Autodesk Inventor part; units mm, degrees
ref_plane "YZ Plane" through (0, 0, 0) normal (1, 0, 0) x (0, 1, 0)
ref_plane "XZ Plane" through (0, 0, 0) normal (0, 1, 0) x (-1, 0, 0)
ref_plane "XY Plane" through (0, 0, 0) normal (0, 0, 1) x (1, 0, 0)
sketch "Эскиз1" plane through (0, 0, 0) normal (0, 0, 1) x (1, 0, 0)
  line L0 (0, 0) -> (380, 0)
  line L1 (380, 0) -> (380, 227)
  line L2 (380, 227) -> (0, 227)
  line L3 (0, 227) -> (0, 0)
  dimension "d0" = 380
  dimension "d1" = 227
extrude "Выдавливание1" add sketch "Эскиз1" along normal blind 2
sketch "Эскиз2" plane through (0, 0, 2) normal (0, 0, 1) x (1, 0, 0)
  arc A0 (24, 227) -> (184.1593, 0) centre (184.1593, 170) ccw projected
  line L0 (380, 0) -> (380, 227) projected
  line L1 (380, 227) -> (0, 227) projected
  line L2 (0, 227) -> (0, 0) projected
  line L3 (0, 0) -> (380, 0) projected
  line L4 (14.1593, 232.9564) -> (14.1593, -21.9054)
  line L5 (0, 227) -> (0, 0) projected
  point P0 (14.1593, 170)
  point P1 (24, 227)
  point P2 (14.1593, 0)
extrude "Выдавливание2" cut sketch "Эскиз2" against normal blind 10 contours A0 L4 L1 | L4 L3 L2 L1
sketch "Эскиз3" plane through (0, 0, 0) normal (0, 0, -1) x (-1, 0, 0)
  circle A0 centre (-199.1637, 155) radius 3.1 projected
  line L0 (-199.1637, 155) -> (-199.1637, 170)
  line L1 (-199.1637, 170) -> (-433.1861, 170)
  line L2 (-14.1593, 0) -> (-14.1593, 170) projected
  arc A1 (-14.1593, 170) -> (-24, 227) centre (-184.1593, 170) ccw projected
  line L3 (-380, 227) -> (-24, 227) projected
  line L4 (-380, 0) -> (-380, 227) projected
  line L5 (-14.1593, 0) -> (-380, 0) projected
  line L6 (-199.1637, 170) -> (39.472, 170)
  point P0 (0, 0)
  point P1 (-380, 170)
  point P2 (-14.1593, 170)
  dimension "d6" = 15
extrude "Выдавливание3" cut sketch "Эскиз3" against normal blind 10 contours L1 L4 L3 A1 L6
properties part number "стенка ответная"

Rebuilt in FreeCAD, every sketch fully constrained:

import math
import FreeCAD as App
import Part
import Sketcher
from FreeCAD import Vector
Q = App.Units.Quantity


def add_polygon(sketch, points):
    """Adds a closed chain of lines whose ends are joined by coincident constraints."""
    first, n = sketch.GeometryCount, len(points)
    for a, b in zip(points, points[1:] + points[:1]):
        sketch.addGeometry(Part.LineSegment(App.Vector(*a, 0), App.Vector(*b, 0)), False)
    for i in range(n):
        sketch.addConstraint(Sketcher.Constraint("Coincident", first + i, 2, first + (i + 1) % n, 1))

doc = App.newDocument("Part")
body = doc.addObject("PartDesign::Body", "Body")

sketch1 = body.newObject("Sketcher::SketchObject", "Sketch")
sketch1.AttachmentSupport = (doc.getObject("XY_Plane"), [""])
sketch1.MapMode = "FlatFace"
add_polygon(sketch1, [(0, 227), (0, 0), (380, 0), (380, 227)])
sketch1.addConstraint([
    Sketcher.Constraint("Vertical", 0),
    Sketcher.Constraint("Horizontal", 1),
    Sketcher.Constraint("Vertical", 2),
    Sketcher.Constraint("Horizontal", 3),
    Sketcher.Constraint("Coincident", 0, 2, -1, 1),
    Sketcher.Constraint("DistanceX", 1, 1, 1, 2, Q("380 mm")),
    Sketcher.Constraint("DistanceY", 0, 2, 0, 1, Q("227 mm")),
])
pad1 = body.newObject("PartDesign::Pad", "Pad")
pad1.Profile = sketch1
pad1.Length = 2

sketch2 = body.newObject("Sketcher::SketchObject", "Sketch001")
sketch2.AttachmentSupport = (doc.getObject("XY_Plane"), [""])
sketch2.MapMode = "FlatFace"
sketch2.AttachmentOffset = App.Placement(Vector(0, 0, 2), App.Rotation())
sketch2.addGeometry([
    Part.ArcOfCircle(Part.Circle(Vector(184, 170, 0), Vector(0, 0, 1), 170), math.radians(160.41), math.radians(180)),
    Part.LineSegment(Vector(24, 227, 0), Vector(0, 227, 0)),
    Part.LineSegment(Vector(0, 227, 0), Vector(0, 0, 0)),
    Part.LineSegment(Vector(0, 0, 0), Vector(14, 0, 0)),
    Part.LineSegment(Vector(14, 0, 0), Vector(14, 170, 0)),
], False)
sketch2.addConstraint([
    Sketcher.Constraint("Coincident", 0, 1, 1, 1),
    Sketcher.Constraint("Coincident", 1, 2, 2, 1),
    Sketcher.Constraint("Coincident", 2, 2, 3, 1),
    Sketcher.Constraint("Coincident", 3, 2, 4, 1),
    Sketcher.Constraint("Tangent", 4, 2, 0, 2),
    Sketcher.Constraint("Horizontal", 1),
    Sketcher.Constraint("Vertical", 2),
    Sketcher.Constraint("Horizontal", 3),
    Sketcher.Constraint("Vertical", 4),
    Sketcher.Constraint("Coincident", 2, 2, -1, 1),
    Sketcher.Constraint("Radius", 0, Q("170 mm")),
    Sketcher.Constraint("DistanceX", 1, 2, 1, 1, Q("24 mm")),
    Sketcher.Constraint("DistanceY", 2, 2, 2, 1, Q("227 mm")),
    Sketcher.Constraint("DistanceY", 4, 1, 4, 2, Q("170 mm")),
])
pocket1 = body.newObject("PartDesign::Pocket", "Pocket")
pocket1.Profile = sketch2
pocket1.Length = 10

sketch3 = body.newObject("Sketcher::SketchObject", "Sketch002")
sketch3.AttachmentSupport = (doc.getObject("XY_Plane"), [""])
sketch3.MapMode = "FlatFace"
sketch3.addGeometry([
    Part.LineSegment(Vector(380, 170, 0), Vector(14, 170, 0)),
    Part.ArcOfCircle(Part.Circle(Vector(184, 170, 0), Vector(0, 0, 1), 170), math.radians(160.41), math.radians(180)),
    Part.LineSegment(Vector(24, 227, 0), Vector(380, 227, 0)),
    Part.LineSegment(Vector(380, 227, 0), Vector(380, 170, 0)),
], False)
sketch3.addConstraint([
    Sketcher.Constraint("Coincident", 0, 2, 1, 2),
    Sketcher.Constraint("Coincident", 1, 1, 2, 1),
    Sketcher.Constraint("Coincident", 2, 2, 3, 1),
    Sketcher.Constraint("Coincident", 3, 2, 0, 1),
    Sketcher.Constraint("Horizontal", 0),
    Sketcher.Constraint("Horizontal", 2),
    Sketcher.Constraint("Vertical", 3),
    Sketcher.Constraint("Horizontal", 1, 3, 0, 2),
    Sketcher.Constraint("Radius", 1, Q("170 mm")),
    Sketcher.Constraint("DistanceX", 2, 1, 2, 2, Q("356 mm")),
    Sketcher.Constraint("DistanceY", 3, 2, 3, 1, Q("57 mm")),
    Sketcher.Constraint("DistanceY", -1, 1, 1, 3, Q("170 mm")),
    Sketcher.Constraint("DistanceX", -1, 1, 1, 1, Q("24 mm")),
])
pocket2 = body.newObject("PartDesign::Pocket", "Pocket001")
pocket2.Profile = sketch3
pocket2.Length = 10
pocket2.Reversed = True

doc.recompute()
